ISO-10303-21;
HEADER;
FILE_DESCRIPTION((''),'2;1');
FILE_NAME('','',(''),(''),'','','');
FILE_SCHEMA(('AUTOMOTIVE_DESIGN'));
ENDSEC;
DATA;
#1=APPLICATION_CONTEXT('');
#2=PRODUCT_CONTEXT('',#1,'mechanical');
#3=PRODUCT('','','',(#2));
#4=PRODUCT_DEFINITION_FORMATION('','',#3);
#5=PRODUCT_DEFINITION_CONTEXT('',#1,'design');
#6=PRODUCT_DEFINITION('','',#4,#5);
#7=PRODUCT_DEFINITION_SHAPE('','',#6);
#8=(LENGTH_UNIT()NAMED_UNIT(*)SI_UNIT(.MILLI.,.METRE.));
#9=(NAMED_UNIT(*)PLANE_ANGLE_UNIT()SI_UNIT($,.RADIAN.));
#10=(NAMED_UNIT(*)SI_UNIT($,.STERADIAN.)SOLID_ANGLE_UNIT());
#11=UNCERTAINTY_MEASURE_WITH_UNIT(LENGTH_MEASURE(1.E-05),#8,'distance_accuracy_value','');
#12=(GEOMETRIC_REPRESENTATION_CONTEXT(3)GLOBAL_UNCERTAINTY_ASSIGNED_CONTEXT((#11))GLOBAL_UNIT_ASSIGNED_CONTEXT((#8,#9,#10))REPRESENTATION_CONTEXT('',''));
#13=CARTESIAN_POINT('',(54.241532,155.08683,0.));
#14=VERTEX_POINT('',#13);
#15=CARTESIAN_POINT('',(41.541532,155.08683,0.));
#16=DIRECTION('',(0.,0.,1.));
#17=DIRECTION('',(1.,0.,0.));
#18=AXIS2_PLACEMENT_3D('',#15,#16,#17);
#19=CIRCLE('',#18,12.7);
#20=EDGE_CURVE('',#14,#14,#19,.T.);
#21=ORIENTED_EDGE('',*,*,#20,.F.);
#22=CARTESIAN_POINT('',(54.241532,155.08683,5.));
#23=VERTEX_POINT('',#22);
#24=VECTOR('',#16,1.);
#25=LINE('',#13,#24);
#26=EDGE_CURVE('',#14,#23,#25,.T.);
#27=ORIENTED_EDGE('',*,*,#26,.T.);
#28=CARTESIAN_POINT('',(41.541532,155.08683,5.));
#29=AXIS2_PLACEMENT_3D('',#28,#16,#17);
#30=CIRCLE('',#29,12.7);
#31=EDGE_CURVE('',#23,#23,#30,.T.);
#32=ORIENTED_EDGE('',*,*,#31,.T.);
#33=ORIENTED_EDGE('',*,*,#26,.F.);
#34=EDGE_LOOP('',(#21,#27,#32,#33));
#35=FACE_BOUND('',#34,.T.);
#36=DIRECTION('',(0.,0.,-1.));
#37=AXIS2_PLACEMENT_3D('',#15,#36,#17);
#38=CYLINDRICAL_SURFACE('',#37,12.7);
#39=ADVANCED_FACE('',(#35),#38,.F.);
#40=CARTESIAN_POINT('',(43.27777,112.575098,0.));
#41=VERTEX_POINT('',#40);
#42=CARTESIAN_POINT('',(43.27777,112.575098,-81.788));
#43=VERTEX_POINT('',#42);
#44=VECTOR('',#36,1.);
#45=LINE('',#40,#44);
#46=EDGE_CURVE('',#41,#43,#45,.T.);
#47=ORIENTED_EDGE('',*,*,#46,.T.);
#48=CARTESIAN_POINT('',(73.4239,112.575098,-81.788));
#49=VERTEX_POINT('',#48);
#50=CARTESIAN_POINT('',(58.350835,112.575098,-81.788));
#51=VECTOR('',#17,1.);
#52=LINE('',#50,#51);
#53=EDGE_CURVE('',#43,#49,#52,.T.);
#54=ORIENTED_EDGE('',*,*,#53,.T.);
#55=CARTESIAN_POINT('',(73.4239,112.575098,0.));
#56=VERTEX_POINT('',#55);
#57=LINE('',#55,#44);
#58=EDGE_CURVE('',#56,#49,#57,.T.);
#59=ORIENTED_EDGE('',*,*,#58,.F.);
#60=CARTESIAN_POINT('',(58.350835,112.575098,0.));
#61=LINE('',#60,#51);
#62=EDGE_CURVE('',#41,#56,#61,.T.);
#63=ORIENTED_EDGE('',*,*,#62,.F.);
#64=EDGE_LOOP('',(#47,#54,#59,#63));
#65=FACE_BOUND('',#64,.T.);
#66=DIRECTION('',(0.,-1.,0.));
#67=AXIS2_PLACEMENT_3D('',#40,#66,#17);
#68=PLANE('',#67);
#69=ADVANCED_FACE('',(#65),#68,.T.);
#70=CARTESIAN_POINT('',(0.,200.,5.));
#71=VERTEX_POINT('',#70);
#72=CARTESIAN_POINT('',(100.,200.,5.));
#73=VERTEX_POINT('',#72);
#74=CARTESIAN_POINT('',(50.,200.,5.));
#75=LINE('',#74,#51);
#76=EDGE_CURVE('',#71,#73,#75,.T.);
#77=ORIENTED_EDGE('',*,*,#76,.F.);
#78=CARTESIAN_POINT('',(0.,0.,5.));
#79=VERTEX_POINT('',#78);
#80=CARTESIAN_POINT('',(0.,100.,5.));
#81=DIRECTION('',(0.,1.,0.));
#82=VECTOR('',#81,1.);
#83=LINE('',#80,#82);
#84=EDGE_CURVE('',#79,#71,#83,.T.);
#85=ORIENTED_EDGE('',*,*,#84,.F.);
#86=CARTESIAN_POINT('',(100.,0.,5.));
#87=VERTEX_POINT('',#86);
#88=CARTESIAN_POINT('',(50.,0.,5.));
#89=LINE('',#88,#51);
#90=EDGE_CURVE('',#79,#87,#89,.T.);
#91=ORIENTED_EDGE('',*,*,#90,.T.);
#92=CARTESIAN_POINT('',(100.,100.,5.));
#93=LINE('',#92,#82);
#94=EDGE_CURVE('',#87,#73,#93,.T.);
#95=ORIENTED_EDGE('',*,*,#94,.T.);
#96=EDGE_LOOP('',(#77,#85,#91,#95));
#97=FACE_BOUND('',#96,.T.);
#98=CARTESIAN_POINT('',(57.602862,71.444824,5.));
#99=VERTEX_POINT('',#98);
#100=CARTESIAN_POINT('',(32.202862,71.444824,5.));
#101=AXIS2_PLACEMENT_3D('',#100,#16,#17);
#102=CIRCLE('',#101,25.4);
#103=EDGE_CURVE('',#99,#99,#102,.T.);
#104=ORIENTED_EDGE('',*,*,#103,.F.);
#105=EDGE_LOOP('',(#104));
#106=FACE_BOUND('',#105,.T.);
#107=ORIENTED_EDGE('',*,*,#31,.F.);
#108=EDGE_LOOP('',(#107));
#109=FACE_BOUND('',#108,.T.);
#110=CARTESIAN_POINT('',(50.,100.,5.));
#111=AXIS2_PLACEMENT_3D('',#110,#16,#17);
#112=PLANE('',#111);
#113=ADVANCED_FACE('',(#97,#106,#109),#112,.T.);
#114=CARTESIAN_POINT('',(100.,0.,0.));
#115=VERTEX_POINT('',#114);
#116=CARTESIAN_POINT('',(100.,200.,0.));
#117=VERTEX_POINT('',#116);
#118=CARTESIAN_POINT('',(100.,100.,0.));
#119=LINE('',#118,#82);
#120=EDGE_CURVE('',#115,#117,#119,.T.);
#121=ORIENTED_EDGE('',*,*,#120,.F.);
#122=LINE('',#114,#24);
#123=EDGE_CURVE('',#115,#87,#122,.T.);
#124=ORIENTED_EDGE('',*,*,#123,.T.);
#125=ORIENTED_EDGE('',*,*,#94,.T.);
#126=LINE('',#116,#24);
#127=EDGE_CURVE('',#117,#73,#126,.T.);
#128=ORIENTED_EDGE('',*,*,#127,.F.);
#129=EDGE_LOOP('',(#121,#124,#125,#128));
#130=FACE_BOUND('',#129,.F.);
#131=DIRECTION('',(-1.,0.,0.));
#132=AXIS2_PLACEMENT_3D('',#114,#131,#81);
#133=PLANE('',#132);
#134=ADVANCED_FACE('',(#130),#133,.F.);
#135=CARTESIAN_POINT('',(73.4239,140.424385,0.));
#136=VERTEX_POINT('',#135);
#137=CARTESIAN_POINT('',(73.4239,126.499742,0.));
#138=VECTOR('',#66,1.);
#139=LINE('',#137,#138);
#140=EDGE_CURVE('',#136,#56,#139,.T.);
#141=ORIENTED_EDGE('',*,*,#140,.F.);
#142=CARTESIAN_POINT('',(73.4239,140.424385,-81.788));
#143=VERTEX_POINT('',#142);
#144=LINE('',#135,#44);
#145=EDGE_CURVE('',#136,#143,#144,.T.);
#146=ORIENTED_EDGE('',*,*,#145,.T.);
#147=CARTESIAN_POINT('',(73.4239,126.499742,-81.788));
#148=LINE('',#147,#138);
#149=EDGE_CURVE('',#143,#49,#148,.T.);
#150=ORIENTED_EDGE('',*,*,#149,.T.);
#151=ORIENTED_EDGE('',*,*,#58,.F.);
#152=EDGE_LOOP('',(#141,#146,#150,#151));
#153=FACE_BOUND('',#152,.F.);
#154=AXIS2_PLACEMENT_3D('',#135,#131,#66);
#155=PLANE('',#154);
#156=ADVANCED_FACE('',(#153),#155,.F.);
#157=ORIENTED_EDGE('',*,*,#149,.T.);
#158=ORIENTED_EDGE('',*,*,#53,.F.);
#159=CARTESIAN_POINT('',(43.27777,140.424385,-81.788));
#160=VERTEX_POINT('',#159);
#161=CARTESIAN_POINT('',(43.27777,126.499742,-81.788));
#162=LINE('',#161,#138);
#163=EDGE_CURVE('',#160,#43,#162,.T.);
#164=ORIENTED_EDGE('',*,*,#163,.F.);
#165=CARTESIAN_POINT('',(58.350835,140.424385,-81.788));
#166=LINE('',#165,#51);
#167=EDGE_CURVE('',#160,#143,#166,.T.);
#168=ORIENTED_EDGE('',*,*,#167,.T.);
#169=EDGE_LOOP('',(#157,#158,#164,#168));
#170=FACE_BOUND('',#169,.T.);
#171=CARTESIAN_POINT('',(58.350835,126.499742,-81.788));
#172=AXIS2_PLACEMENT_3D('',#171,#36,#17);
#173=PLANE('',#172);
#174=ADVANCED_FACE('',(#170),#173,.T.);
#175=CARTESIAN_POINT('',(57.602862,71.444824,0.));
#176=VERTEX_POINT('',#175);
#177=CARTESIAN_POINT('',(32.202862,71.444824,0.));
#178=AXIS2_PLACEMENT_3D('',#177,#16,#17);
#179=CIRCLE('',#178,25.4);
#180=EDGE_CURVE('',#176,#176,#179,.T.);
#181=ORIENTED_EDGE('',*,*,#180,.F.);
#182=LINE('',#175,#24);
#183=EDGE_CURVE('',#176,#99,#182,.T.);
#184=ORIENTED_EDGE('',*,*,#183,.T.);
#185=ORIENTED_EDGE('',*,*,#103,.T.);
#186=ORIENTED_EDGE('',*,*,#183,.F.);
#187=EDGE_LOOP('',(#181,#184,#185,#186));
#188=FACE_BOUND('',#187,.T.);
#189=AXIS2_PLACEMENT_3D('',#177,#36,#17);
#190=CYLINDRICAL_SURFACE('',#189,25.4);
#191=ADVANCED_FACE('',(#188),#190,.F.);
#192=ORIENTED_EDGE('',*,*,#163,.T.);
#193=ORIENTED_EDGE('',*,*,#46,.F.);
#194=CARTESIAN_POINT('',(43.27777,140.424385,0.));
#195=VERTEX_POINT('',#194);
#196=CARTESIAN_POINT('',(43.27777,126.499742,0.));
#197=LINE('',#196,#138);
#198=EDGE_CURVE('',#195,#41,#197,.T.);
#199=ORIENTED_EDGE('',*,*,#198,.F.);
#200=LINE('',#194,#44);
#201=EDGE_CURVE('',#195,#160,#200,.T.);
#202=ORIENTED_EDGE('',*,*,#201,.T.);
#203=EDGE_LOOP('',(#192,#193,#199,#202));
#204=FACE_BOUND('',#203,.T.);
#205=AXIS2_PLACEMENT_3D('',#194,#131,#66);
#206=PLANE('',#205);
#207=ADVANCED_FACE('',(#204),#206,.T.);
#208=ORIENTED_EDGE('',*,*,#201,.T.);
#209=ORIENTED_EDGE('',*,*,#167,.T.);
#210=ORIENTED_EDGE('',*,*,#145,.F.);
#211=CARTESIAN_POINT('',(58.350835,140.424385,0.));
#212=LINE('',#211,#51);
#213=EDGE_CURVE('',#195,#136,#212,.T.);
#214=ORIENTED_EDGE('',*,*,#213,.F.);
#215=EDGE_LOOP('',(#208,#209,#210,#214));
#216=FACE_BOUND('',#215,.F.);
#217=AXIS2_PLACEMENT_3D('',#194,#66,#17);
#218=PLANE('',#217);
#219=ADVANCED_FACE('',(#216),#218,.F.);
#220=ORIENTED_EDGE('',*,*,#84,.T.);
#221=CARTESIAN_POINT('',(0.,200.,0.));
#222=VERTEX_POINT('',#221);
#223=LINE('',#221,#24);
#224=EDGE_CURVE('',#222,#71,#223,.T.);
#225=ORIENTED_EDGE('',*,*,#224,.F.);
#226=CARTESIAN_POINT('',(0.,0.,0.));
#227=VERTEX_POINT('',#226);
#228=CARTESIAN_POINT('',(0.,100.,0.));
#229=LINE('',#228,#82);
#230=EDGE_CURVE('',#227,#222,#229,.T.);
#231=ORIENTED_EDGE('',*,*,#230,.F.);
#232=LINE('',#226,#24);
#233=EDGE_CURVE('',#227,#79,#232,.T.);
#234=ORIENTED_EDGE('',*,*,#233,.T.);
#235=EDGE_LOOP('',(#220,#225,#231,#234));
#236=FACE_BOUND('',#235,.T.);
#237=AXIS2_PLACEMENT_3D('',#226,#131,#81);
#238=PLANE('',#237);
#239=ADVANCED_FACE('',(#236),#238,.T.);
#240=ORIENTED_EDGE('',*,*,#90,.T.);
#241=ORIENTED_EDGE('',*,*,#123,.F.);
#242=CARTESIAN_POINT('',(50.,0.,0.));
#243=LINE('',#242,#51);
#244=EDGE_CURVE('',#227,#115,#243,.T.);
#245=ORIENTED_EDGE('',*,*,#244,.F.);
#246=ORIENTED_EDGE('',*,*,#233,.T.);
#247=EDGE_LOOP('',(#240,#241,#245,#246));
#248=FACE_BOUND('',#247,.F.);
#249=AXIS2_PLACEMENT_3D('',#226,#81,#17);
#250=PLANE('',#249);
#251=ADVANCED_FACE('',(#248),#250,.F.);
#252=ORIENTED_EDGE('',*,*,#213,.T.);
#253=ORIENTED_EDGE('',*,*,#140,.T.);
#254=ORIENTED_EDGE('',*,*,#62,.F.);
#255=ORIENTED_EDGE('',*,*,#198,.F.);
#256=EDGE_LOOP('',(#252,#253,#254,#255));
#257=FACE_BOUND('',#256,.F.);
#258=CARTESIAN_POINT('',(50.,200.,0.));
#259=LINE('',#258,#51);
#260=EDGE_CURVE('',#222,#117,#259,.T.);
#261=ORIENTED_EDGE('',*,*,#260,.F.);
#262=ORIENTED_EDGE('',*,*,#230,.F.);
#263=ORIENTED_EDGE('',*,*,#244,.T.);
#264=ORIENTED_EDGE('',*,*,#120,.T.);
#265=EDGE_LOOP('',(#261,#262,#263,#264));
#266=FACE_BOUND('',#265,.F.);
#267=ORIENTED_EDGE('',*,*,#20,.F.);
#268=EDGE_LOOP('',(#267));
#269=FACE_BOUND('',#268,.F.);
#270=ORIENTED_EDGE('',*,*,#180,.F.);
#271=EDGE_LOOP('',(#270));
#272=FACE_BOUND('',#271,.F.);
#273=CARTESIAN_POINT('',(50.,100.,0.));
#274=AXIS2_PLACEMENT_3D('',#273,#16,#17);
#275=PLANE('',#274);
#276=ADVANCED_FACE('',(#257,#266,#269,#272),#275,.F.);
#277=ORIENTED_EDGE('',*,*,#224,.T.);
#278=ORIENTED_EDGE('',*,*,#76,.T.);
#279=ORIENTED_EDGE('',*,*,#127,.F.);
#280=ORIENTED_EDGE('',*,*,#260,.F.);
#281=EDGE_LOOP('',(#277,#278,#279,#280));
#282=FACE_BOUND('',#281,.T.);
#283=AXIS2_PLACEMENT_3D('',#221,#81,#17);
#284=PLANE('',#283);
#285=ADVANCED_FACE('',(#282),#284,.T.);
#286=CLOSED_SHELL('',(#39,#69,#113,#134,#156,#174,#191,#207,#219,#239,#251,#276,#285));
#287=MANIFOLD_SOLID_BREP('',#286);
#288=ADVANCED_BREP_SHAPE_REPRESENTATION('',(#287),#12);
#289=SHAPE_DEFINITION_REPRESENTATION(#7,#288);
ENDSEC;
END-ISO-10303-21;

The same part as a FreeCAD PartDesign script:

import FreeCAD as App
import Part
import Sketcher

V = App.Vector
Q = App.Units.Quantity


def add_polygon(sketch, points):
    """Adds a closed chain of lines whose ends are joined by coincident constraints."""
    first, n = sketch.GeometryCount, len(points)
    for a, b in zip(points, points[1:] + points[:1]):
        sketch.addGeometry(Part.LineSegment(App.Vector(*a, 0), App.Vector(*b, 0)), False)
    for i in range(n):
        sketch.addConstraint(Sketcher.Constraint("Coincident", first + i, 2, first + (i + 1) % n, 1))

doc = App.newDocument("Part")
body = doc.addObject("PartDesign::Body", "Body")

# Sketch on XY plane
sketch1 = body.newObject("Sketcher::SketchObject", "Sketch")
sketch1.AttachmentSupport = (doc.getObject("XY_Plane"), [""])
sketch1.MapMode = "FlatFace"
add_polygon(sketch1, [(0, 200), (0, 0), (100, 0), (100, 200)])  # lines 0-3
sketch1.addGeometry(Part.Circle(V(32.202862, 71.444824, 0), V(0, 0, 1), 25.4), False)  # 4
sketch1.addGeometry(Part.Circle(V(41.541532, 155.08683, 0), V(0, 0, 1), 12.7), False)  # 5
sketch1.addConstraint([
    Sketcher.Constraint("Vertical", 0),
    Sketcher.Constraint("Horizontal", 1),
    Sketcher.Constraint("Vertical", 2),
    Sketcher.Constraint("Horizontal", 3),
    Sketcher.Constraint("Coincident", 0, 2, -1, 1),
    Sketcher.Constraint("Diameter", 4, Q("50.8 mm")),
    Sketcher.Constraint("Diameter", 5, Q("25.4 mm")),
    Sketcher.Constraint("DistanceX", 1, 1, 1, 2, Q("100 mm")),
    Sketcher.Constraint("DistanceY", 0, 2, 0, 1, Q("200 mm")),
    Sketcher.Constraint("DistanceX", -1, 1, 5, 3, Q("41.541532 mm")),
    Sketcher.Constraint("DistanceY", -1, 1, 5, 3, Q("155.08683 mm")),
    Sketcher.Constraint("DistanceX", 4, 3, 5, 3, Q("9.33867 mm")),
    Sketcher.Constraint("DistanceY", -1, 1, 4, 3, Q("71.444824 mm")),
])
pad1 = body.newObject("PartDesign::Pad", "Pad")
pad1.Profile = sketch1
pad1.Length = 5

# Sketch on XY plane
sketch2 = body.newObject("Sketcher::SketchObject", "Sketch001")
sketch2.AttachmentSupport = (doc.getObject("XY_Plane"), [""])
sketch2.MapMode = "FlatFace"
add_polygon(sketch2, [(43.27777, 112.575098), (43.27777, 140.424385), (73.4239, 140.424385), (73.4239, 112.575098)])  # lines 0-3
sketch2.addConstraint([
    Sketcher.Constraint("Vertical", 0),
    Sketcher.Constraint("Horizontal", 1),
    Sketcher.Constraint("Vertical", 2),
    Sketcher.Constraint("Horizontal", 3),
    Sketcher.Constraint("DistanceX", 1, 1, 1, 2, Q("30.14613 mm")),
    Sketcher.Constraint("DistanceX", -1, 1, 1, 2, Q("73.4239 mm")),
    Sketcher.Constraint("DistanceY", -1, 1, 2, 2, Q("112.575098 mm")),
    Sketcher.Constraint("DistanceY", 0, 1, 0, 2, Q("27.849287 mm")),
])
pad2 = body.newObject("PartDesign::Pad", "Pad001")
pad2.Profile = sketch2
pad2.Length = 81.788
pad2.Reversed = True

doc.recompute()
